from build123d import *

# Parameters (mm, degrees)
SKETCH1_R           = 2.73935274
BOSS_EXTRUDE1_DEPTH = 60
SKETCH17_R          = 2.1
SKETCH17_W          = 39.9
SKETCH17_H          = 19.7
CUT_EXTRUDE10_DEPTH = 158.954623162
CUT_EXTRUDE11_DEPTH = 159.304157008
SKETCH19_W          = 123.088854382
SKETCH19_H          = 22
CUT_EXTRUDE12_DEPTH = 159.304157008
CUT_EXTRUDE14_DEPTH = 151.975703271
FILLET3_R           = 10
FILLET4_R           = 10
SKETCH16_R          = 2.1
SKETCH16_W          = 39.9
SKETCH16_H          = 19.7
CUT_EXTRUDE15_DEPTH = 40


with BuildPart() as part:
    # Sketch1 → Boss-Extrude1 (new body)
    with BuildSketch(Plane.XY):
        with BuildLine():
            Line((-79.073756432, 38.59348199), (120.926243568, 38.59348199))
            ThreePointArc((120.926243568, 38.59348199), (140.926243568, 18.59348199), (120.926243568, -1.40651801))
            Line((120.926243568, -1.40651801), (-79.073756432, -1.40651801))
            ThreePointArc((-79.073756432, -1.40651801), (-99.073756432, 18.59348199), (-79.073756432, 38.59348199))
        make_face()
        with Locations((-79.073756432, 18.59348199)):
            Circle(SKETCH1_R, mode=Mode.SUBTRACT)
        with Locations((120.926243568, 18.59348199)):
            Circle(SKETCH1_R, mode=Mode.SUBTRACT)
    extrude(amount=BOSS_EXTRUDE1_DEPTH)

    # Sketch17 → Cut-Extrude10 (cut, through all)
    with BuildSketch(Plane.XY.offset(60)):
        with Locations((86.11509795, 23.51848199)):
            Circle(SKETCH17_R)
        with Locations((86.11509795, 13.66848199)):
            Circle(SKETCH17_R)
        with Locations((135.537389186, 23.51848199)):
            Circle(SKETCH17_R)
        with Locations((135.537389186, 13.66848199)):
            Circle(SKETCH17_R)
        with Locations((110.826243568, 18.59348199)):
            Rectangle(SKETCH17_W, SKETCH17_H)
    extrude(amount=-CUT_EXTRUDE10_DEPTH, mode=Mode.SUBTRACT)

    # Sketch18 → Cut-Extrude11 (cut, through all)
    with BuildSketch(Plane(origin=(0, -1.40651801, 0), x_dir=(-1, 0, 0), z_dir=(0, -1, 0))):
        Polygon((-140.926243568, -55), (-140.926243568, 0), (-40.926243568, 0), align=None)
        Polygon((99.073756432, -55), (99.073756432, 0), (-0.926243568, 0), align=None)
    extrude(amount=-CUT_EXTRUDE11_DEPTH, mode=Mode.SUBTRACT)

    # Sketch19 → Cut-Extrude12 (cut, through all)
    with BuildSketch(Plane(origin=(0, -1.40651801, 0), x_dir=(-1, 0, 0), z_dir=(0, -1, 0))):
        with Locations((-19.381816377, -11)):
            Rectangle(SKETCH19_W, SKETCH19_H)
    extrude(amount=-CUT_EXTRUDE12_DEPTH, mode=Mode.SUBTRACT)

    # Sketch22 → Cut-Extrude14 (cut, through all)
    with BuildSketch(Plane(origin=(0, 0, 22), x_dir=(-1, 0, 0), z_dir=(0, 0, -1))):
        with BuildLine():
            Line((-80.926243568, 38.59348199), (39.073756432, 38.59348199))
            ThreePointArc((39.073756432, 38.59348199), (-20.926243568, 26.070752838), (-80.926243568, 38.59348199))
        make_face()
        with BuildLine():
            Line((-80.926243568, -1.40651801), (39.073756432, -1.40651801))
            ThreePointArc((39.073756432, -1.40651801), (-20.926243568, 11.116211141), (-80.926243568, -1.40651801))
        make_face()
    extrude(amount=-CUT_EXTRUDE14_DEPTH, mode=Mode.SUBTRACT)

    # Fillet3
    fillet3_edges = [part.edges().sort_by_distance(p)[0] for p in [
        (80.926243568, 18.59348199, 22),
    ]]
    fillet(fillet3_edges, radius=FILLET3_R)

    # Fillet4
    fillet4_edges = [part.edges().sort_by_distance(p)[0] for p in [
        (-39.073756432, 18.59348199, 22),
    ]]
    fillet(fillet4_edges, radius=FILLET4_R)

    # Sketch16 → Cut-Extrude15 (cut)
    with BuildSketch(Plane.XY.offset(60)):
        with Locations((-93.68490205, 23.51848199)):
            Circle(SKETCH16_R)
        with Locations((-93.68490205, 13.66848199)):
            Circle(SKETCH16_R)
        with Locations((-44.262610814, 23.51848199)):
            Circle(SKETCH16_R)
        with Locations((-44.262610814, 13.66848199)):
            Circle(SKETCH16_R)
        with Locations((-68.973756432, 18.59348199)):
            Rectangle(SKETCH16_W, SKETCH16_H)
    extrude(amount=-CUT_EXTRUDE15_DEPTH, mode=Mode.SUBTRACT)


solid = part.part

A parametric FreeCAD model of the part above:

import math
import FreeCAD as App
import Part
import Sketcher
from FreeCAD import Vector


def edges_at(feature, points):
    """Names of the edges that pass closest to the given points."""
    edges = feature.Shape.Edges
    near = lambda p: min(range(len(edges)), key=lambda i: edges[i].distToShape(Part.Vertex(*p))[0])
    return sorted({f"Edge{near(p) + 1}" for p in points})

doc = App.newDocument("Part")
body = doc.addObject("PartDesign::Body", "Body")

# Sketch on XY plane
sketch1 = body.newObject("Sketcher::SketchObject", "Sketch")
sketch1.AttachmentSupport = (doc.getObject("XY_Plane"), [""])
sketch1.MapMode = "FlatFace"
sketch1.addGeometry(Part.LineSegment(Vector(120.9, 38.6, 0), Vector(-79.1, 38.6, 0)), False)
sketch1.addGeometry(Part.ArcOfCircle(Part.Circle(Vector(-79.1, 18.6, 0), Vector(0, 0, 1), 20), math.radians(90), math.radians(270)), False)
sketch1.addGeometry(Part.LineSegment(Vector(-79.1, -1.4, 0), Vector(120.9, -1.4, 0)), False)
sketch1.addGeometry(Part.ArcOfCircle(Part.Circle(Vector(120.9, 18.6, 0), Vector(0, 0, 1), 20), math.radians(-90), math.radians(90)), False)
sketch1.addGeometry(Part.Circle(Vector(120.9, 18.6, 0), Vector(0, 0, 1), 2.7), False)
sketch1.addGeometry(Part.Circle(Vector(-79.1, 18.6, 0), Vector(0, 0, 1), 2.7), False)
sketch1.addConstraint(Sketcher.Constraint("Tangent", 0, 2, 1, 1))
sketch1.addConstraint(Sketcher.Constraint("Tangent", 1, 2, 2, 1))
sketch1.addConstraint(Sketcher.Constraint("Tangent", 2, 2, 3, 1))
sketch1.addConstraint(Sketcher.Constraint("Tangent", 3, 2, 0, 1))
sketch1.addConstraint(Sketcher.Constraint("Horizontal", 0))
sketch1.addConstraint(Sketcher.Constraint("Horizontal", 2))
sketch1.addConstraint(Sketcher.Constraint("Coincident", 4, 3, 3, 3))
sketch1.addConstraint(Sketcher.Constraint("Coincident", 5, 3, 1, 3))
sketch1.addConstraint(Sketcher.Constraint("Equal", 4, 5))
sketch1.addConstraint(Sketcher.Constraint("Radius", 1, 20.0))
sketch1.addConstraint(Sketcher.Constraint("DistanceX", 0, 2, 0, 1, 200.0))
sketch1.addConstraint(Sketcher.Constraint("Diameter", 4, 5.478705))
sketch1.addConstraint(Sketcher.Constraint("DistanceY", -1, 1, 1, 3, 18.593482))
sketch1.addConstraint(Sketcher.Constraint("DistanceX", 1, 3, -1, 1, 79.073756))
pad1 = body.newObject("PartDesign::Pad", "Pad")
pad1.Profile = sketch1
pad1.Length = 60

# Sketch on XY plane
sketch2 = body.newObject("Sketcher::SketchObject", "Sketch001")
sketch2.AttachmentSupport = (doc.getObject("XY_Plane"), [""])
sketch2.MapMode = "FlatFace"
sketch2.AttachmentOffset = App.Placement(Vector(0, 0, 60), App.Rotation())
sketch2.addGeometry(Part.Circle(Vector(86.1, 23.5, 0), Vector(0, 0, 1), 2.1), False)
sketch2.addGeometry(Part.Circle(Vector(86.1, 13.7, 0), Vector(0, 0, 1), 2.1), False)
sketch2.addGeometry(Part.Circle(Vector(135.5, 23.5, 0), Vector(0, 0, 1), 2.1), False)
sketch2.addGeometry(Part.Circle(Vector(135.5, 13.7, 0), Vector(0, 0, 1), 2.1), False)
sketch2.addGeometry(Part.LineSegment(Vector(90.9, 28.4, 0), Vector(90.9, 8.7, 0)), False)
sketch2.addGeometry(Part.LineSegment(Vector(90.9, 8.7, 0), Vector(130.8, 8.7, 0)), False)
sketch2.addGeometry(Part.LineSegment(Vector(130.8, 8.7, 0), Vector(130.8, 28.4, 0)), False)
sketch2.addGeometry(Part.LineSegment(Vector(130.8, 28.4, 0), Vector(90.9, 28.4, 0)), False)
sketch2.addConstraint(Sketcher.Constraint("Coincident", 4, 2, 5, 1))
sketch2.addConstraint(Sketcher.Constraint("Coincident", 5, 2, 6, 1))
sketch2.addConstraint(Sketcher.Constraint("Coincident", 6, 2, 7, 1))
sketch2.addConstraint(Sketcher.Constraint("Coincident", 7, 2, 4, 1))
sketch2.addConstraint(Sketcher.Constraint("Vertical", 4))
sketch2.addConstraint(Sketcher.Constraint("Horizontal", 5))
sketch2.addConstraint(Sketcher.Constraint("Vertical", 6))
sketch2.addConstraint(Sketcher.Constraint("Horizontal", 7))
sketch2.addConstraint(Sketcher.Constraint("Equal", 0, 1))
sketch2.addConstraint(Sketcher.Constraint("Equal", 1, 2))
sketch2.addConstraint(Sketcher.Constraint("Equal", 2, 3))
sketch2.addConstraint(Sketcher.Constraint("Horizontal", 0, 3, 2, 3))
sketch2.addConstraint(Sketcher.Constraint("Horizontal", 1, 3, 3, 3))
sketch2.addConstraint(Sketcher.Constraint("Vertical", 0, 3, 1, 3))
sketch2.addConstraint(Sketcher.Constraint("Vertical", 2, 3, 3, 3))
sketch2.addConstraint(Sketcher.Constraint("Diameter", 0, 4.2))
sketch2.addConstraint(Sketcher.Constraint("DistanceX", 5, 1, 5, 2, 39.9))
sketch2.addConstraint(Sketcher.Constraint("DistanceY", 4, 2, 4, 1, 19.7))
sketch2.addConstraint(Sketcher.Constraint("DistanceY", 1, 3, 0, 3, 9.85))
sketch2.addConstraint(Sketcher.Constraint("DistanceY", 4, 2, 1, 3, 4.925))
sketch2.addConstraint(Sketcher.Constraint("DistanceY", -1, 1, 0, 3, 23.518482))
sketch2.addConstraint(Sketcher.Constraint("DistanceX", -1, 1, 2, 3, 135.537389))
sketch2.addConstraint(Sketcher.Constraint("DistanceX", 0, 3, 2, 3, 49.422291))
sketch2.addConstraint(Sketcher.Constraint("DistanceX", -1, 1, 4, 2, 90.876244))
pocket1 = body.newObject("PartDesign::Pocket", "Pocket")
pocket1.Profile = sketch2
pocket1.Type = "ThroughAll"

# Sketch on XZ plane
sketch3 = body.newObject("Sketcher::SketchObject", "Sketch002")
sketch3.AttachmentSupport = (doc.getObject("XZ_Plane"), [""])
sketch3.MapMode = "FlatFace"
sketch3.AttachmentOffset = App.Placement(Vector(0, 0, 1.406518), App.Rotation())
sketch3.addGeometry(Part.LineSegment(Vector(141, 0, 0), Vector(141, 55, 0)), False)
sketch3.addGeometry(Part.LineSegment(Vector(141, 55, 0), Vector(41, 0, 0)), False)
sketch3.addGeometry(Part.LineSegment(Vector(41, 0, 0), Vector(141, 0, 0)), False)
sketch3.addGeometry(Part.LineSegment(Vector(-99, 55, 0), Vector(-99, 0, 0)), False)
sketch3.addGeometry(Part.LineSegment(Vector(-99, 0, 0), Vector(1, 0, 0)), False)
sketch3.addGeometry(Part.LineSegment(Vector(1, 0, 0), Vector(-99, 55, 0)), False)
sketch3.addConstraint(Sketcher.Constraint("Coincident", 0, 2, 1, 1))
sketch3.addConstraint(Sketcher.Constraint("Coincident", 1, 2, 2, 1))
sketch3.addConstraint(Sketcher.Constraint("Coincident", 2, 2, 0, 1))
sketch3.addConstraint(Sketcher.Constraint("Coincident", 3, 2, 4, 1))
sketch3.addConstraint(Sketcher.Constraint("Coincident", 4, 2, 5, 1))
sketch3.addConstraint(Sketcher.Constraint("Coincident", 5, 2, 3, 1))
sketch3.addConstraint(Sketcher.Constraint("Vertical", 0))
sketch3.addConstraint(Sketcher.Constraint("Horizontal", 2))
sketch3.addConstraint(Sketcher.Constraint("Vertical", 3))
sketch3.addConstraint(Sketcher.Constraint("Horizontal", 4))
sketch3.addConstraint(Sketcher.Constraint("PointOnObject", 1, 2, -1))
sketch3.addConstraint(Sketcher.Constraint("PointOnObject", 3, 2, -1))
sketch3.addConstraint(Sketcher.Constraint("Horizontal", 0, 2, 5, 2))
sketch3.addConstraint(Sketcher.Constraint("Equal", 2, 4))
sketch3.addConstraint(Sketcher.Constraint("DistanceX", 2, 1, 2, 2, 100.0))
sketch3.addConstraint(Sketcher.Constraint("DistanceY", 0, 1, 0, 2, 55.0))
sketch3.addConstraint(Sketcher.Constraint("DistanceX", 3, 2, 1, 2, 140.0))
sketch3.addConstraint(Sketcher.Constraint("DistanceX", -1, 1, 0, 2, 140.926244))
pocket2 = body.newObject("PartDesign::Pocket", "Pocket001")
pocket2.Profile = sketch3
pocket2.Type = "ThroughAll"

# Sketch on XZ plane
sketch4 = body.newObject("Sketcher::SketchObject", "Sketch003")
sketch4.AttachmentSupport = (doc.getObject("XZ_Plane"), [""])
sketch4.MapMode = "FlatFace"
sketch4.AttachmentOffset = App.Placement(Vector(0, 0, 1.406518), App.Rotation())
sketch4.addGeometry(Part.LineSegment(Vector(81, 0, 0), Vector(81, 22, 0)), False)
sketch4.addGeometry(Part.LineSegment(Vector(81, 22, 0), Vector(-42, 22, 0)), False)
sketch4.addGeometry(Part.LineSegment(Vector(-42, 22, 0), Vector(-42, 0, 0)), False)
sketch4.addGeometry(Part.LineSegment(Vector(-42, 0, 0), Vector(81, 0, 0)), False)
sketch4.addConstraint(Sketcher.Constraint("Coincident", 0, 2, 1, 1))
sketch4.addConstraint(Sketcher.Constraint("Coincident", 1, 2, 2, 1))
sketch4.addConstraint(Sketcher.Constraint("Coincident", 2, 2, 3, 1))
sketch4.addConstraint(Sketcher.Constraint("Coincident", 3, 2, 0, 1))
sketch4.addConstraint(Sketcher.Constraint("Vertical", 0))
sketch4.addConstraint(Sketcher.Constraint("Horizontal", 1))
sketch4.addConstraint(Sketcher.Constraint("Vertical", 2))
sketch4.addConstraint(Sketcher.Constraint("Horizontal", 3))
sketch4.addConstraint(Sketcher.Constraint("PointOnObject", 2, 2, -1))
sketch4.addConstraint(Sketcher.Constraint("DistanceY", 0, 1, 0, 2, 22.0))
sketch4.addConstraint(Sketcher.Constraint("DistanceX", 1, 2, 1, 1, 123.088854))
sketch4.addConstraint(Sketcher.Constraint("DistanceX", 1, 2, -1, 1, 42.162611))
pocket3 = body.newObject("PartDesign::Pocket", "Pocket002")
pocket3.Profile = sketch4
pocket3.Type = "ThroughAll"

# Sketch on XY plane
sketch5 = body.newObject("Sketcher::SketchObject", "Sketch004")
sketch5.AttachmentSupport = (doc.getObject("XY_Plane"), [""])
sketch5.MapMode = "FlatFace"
sketch5.AttachmentOffset = App.Placement(Vector(0, 0, 22), App.Rotation())
sketch5.addGeometry(Part.LineSegment(Vector(-39, 39, 0), Vector(81, 39, 0)), False)
sketch5.addGeometry(Part.ArcOfCircle(Part.Circle(Vector(21, 176, 0), Vector(0, 0, 1), 150), math.radians(-114), math.radians(-66)), False)
sketch5.addGeometry(Part.LineSegment(Vector(81, -1, 0), Vector(-39, -1, 0)), False)
sketch5.addGeometry(Part.ArcOfCircle(Part.Circle(Vector(21, -139, 0), Vector(0, 0, 1), 150), math.radians(66), math.radians(114)), False)
sketch5.addConstraint(Sketcher.Constraint("Coincident", 0, 1, 1, 1))
sketch5.addConstraint(Sketcher.Constraint("Coincident", 1, 2, 0, 2))
sketch5.addConstraint(Sketcher.Constraint("Coincident", 2, 1, 3, 1))
sketch5.addConstraint(Sketcher.Constraint("Coincident", 3, 2, 2, 2))
sketch5.addConstraint(Sketcher.Constraint("Horizontal", 0))
sketch5.addConstraint(Sketcher.Constraint("Horizontal", 2))
sketch5.addConstraint(Sketcher.Constraint("Equal", 1, 3))
sketch5.addConstraint(Sketcher.Constraint("Vertical", 1, 3, 3, 3))
sketch5.addConstraint(Sketcher.Constraint("Vertical", 1, 2, 2, 1))
sketch5.addConstraint(Sketcher.Constraint("Radius", 1, 150.0))
sketch5.addConstraint(Sketcher.Constraint("DistanceX", 0, 1, 0, 2, 120.0))
sketch5.addConstraint(Sketcher.Constraint("DistanceY", 2, 1, 1, 2, 40.0))
sketch5.addConstraint(Sketcher.Constraint("DistanceY", 3, 3, -1, 1, 138.883789))
sketch5.addConstraint(Sketcher.Constraint("DistanceX", -1, 1, 1, 3, 20.926244))
pocket4 = body.newObject("PartDesign::Pocket", "Pocket003")
pocket4.Profile = sketch5
pocket4.Type = "ThroughAll"
pocket4.Reversed = True
doc.recompute()

fillet = body.newObject("PartDesign::Fillet", "Fillet")
fillet.Base = (pocket4, edges_at(pocket4, [(80.926, 18.593, 22)]))
fillet.Radius = 10
doc.recompute()

fillet2 = body.newObject("PartDesign::Fillet", "Fillet001")
fillet2.Base = (fillet, edges_at(fillet, [(-39.074, 18.593, 22)]))
fillet2.Radius = 10

# Sketch on XY plane
sketch6 = body.newObject("Sketcher::SketchObject", "Sketch005")
sketch6.AttachmentSupport = (doc.getObject("XY_Plane"), [""])
sketch6.MapMode = "FlatFace"
sketch6.AttachmentOffset = App.Placement(Vector(0, 0, 60), App.Rotation())
sketch6.addGeometry(Part.Circle(Vector(-93.7, 23.5, 0), Vector(0, 0, 1), 2.1), False)
sketch6.addGeometry(Part.Circle(Vector(-93.7, 13.7, 0), Vector(0, 0, 1), 2.1), False)
sketch6.addGeometry(Part.Circle(Vector(-44.3, 23.5, 0), Vector(0, 0, 1), 2.1), False)
sketch6.addGeometry(Part.Circle(Vector(-44.3, 13.7, 0), Vector(0, 0, 1), 2.1), False)
sketch6.addGeometry(Part.LineSegment(Vector(-88.9, 28.4, 0), Vector(-88.9, 8.7, 0)), False)
sketch6.addGeometry(Part.LineSegment(Vector(-88.9, 8.7, 0), Vector(-49, 8.7, 0)), False)
sketch6.addGeometry(Part.LineSegment(Vector(-49, 8.7, 0), Vector(-49, 28.4, 0)), False)
sketch6.addGeometry(Part.LineSegment(Vector(-49, 28.4, 0), Vector(-88.9, 28.4, 0)), False)
sketch6.addConstraint(Sketcher.Constraint("Coincident", 4, 2, 5, 1))
sketch6.addConstraint(Sketcher.Constraint("Coincident", 5, 2, 6, 1))
sketch6.addConstraint(Sketcher.Constraint("Coincident", 6, 2, 7, 1))
sketch6.addConstraint(Sketcher.Constraint("Coincident", 7, 2, 4, 1))
sketch6.addConstraint(Sketcher.Constraint("Vertical", 4))
sketch6.addConstraint(Sketcher.Constraint("Horizontal", 5))
sketch6.addConstraint(Sketcher.Constraint("Vertical", 6))
sketch6.addConstraint(Sketcher.Constraint("Horizontal", 7))
sketch6.addConstraint(Sketcher.Constraint("Equal", 0, 1))
sketch6.addConstraint(Sketcher.Constraint("Equal", 1, 2))
sketch6.addConstraint(Sketcher.Constraint("Equal", 2, 3))
sketch6.addConstraint(Sketcher.Constraint("Horizontal", 0, 3, 2, 3))
sketch6.addConstraint(Sketcher.Constraint("Horizontal", 1, 3, 3, 3))
sketch6.addConstraint(Sketcher.Constraint("Vertical", 0, 3, 1, 3))
sketch6.addConstraint(Sketcher.Constraint("Vertical", 2, 3, 3, 3))
sketch6.addConstraint(Sketcher.Constraint("Diameter", 0, 4.2))
sketch6.addConstraint(Sketcher.Constraint("DistanceX", 5, 1, 5, 2, 39.9))
sketch6.addConstraint(Sketcher.Constraint("DistanceY", 4, 2, 4, 1, 19.7))
sketch6.addConstraint(Sketcher.Constraint("DistanceY", 1, 3, 0, 3, 9.85))
sketch6.addConstraint(Sketcher.Constraint("DistanceY", 4, 2, 1, 3, 4.925))
sketch6.addConstraint(Sketcher.Constraint("DistanceY", -1, 1, 0, 3, 23.518482))
sketch6.addConstraint(Sketcher.Constraint("DistanceX", 2, 3, -1, 1, 44.262611))
sketch6.addConstraint(Sketcher.Constraint("DistanceX", 0, 3, 2, 3, 49.422291))
sketch6.addConstraint(Sketcher.Constraint("DistanceX", 4, 2, -1, 1, 88.923756))
pocket5 = body.newObject("PartDesign::Pocket", "Pocket004")
pocket5.Profile = sketch6
pocket5.Length = 40

doc.recompute()
